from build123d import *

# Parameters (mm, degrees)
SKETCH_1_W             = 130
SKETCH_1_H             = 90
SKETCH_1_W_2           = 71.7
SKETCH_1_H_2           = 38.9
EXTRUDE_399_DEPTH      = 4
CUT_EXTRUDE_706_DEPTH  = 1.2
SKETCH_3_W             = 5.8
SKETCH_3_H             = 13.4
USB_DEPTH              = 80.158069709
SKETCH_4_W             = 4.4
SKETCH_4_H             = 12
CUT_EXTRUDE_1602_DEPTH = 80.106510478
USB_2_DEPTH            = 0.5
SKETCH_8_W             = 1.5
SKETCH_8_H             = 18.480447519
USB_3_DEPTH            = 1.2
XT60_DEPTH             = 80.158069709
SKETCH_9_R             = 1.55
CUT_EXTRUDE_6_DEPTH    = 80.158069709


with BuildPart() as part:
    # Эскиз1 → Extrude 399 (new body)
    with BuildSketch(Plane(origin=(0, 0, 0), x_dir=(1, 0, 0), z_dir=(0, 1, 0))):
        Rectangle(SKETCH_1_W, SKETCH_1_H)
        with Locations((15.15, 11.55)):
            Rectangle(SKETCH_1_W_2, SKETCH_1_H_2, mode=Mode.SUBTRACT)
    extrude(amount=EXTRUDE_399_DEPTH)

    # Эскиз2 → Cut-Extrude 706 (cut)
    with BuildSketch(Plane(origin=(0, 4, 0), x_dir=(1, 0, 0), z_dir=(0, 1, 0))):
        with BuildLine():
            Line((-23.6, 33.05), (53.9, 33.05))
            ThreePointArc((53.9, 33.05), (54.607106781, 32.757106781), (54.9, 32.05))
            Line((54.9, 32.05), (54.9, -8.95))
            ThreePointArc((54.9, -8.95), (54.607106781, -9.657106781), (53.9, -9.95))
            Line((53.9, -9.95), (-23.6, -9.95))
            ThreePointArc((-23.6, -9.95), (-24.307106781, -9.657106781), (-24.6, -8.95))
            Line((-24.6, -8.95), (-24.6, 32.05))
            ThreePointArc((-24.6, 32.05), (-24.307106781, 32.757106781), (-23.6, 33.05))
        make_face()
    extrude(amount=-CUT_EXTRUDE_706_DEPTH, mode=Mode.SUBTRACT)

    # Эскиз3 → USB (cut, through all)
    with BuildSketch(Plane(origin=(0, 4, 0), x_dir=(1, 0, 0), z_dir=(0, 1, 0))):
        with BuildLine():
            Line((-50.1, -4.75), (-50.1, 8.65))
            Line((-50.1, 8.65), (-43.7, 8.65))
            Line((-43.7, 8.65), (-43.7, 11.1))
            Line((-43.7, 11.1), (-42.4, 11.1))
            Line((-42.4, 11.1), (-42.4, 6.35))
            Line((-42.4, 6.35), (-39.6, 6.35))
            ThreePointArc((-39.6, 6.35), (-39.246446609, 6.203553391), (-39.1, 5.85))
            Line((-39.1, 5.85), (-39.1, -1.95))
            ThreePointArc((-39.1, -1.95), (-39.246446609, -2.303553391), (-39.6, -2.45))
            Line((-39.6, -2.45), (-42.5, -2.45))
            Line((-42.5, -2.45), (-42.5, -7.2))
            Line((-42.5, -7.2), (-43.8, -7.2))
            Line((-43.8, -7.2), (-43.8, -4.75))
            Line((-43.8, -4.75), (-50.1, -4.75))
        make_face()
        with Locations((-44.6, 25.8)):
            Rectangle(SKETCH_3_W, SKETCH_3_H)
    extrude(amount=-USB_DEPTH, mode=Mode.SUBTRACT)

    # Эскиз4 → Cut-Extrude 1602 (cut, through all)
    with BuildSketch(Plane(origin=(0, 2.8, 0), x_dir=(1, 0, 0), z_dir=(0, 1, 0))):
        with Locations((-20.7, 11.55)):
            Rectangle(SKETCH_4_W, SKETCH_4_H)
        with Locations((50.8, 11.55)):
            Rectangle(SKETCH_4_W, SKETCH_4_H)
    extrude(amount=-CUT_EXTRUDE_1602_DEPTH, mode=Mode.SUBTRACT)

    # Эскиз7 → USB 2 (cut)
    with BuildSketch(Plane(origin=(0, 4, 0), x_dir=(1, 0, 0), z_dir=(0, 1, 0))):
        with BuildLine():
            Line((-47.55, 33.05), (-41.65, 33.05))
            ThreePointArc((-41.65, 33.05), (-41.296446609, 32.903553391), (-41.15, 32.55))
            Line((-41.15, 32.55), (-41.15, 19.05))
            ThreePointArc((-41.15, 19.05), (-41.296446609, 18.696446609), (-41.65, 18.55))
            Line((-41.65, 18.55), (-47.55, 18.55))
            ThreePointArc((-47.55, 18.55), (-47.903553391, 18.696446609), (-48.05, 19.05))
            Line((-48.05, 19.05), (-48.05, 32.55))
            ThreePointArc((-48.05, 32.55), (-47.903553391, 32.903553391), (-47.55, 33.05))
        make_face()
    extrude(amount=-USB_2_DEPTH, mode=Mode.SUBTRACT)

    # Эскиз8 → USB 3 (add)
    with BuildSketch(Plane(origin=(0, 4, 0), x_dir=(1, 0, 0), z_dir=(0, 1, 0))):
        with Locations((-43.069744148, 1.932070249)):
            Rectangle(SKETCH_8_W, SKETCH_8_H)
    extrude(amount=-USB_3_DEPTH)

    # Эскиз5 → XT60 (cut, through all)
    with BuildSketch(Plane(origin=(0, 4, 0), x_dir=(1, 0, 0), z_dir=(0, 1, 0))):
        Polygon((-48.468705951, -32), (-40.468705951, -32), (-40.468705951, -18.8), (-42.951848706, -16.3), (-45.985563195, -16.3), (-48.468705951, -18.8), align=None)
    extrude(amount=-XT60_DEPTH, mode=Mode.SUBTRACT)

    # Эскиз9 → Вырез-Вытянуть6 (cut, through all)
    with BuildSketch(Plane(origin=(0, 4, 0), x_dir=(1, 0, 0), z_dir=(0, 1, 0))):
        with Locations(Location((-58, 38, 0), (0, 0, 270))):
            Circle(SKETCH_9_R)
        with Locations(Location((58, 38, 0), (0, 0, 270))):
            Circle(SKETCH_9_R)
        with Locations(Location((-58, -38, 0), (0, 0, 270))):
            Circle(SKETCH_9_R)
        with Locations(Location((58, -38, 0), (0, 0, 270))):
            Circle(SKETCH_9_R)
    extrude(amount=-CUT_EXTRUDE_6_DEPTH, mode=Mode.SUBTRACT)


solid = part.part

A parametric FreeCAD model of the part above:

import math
import FreeCAD as App
import Part
import Sketcher
from FreeCAD import Vector
Q = App.Units.Quantity


def add_polygon(sketch, points):
    """Adds a closed chain of lines whose ends are joined by coincident constraints."""
    first, n = sketch.GeometryCount, len(points)
    for a, b in zip(points, points[1:] + points[:1]):
        sketch.addGeometry(Part.LineSegment(App.Vector(*a, 0), App.Vector(*b, 0)), False)
    for i in range(n):
        sketch.addConstraint(Sketcher.Constraint("Coincident", first + i, 2, first + (i + 1) % n, 1))

doc = App.newDocument("Part")
body = doc.addObject("PartDesign::Body", "Body")

sketch1 = body.newObject("Sketcher::SketchObject", "Sketch")
sketch1.AttachmentSupport = (doc.getObject("XZ_Plane"), [""])
sketch1.MapMode = "FlatFace"
add_polygon(sketch1, [(-65, -45), (-65, 45), (65, 45), (65, -45)])
add_polygon(sketch1, [(51, 7.9), (-20.7, 7.9), (-20.7, -31), (51, -31)])
sketch1.addConstraint([
    Sketcher.Constraint("Vertical", 0),
    Sketcher.Constraint("Horizontal", 1),
    Sketcher.Constraint("Vertical", 2),
    Sketcher.Constraint("Horizontal", 3),
    Sketcher.Constraint("Horizontal", 4),
    Sketcher.Constraint("Vertical", 5),
    Sketcher.Constraint("Horizontal", 6),
    Sketcher.Constraint("Vertical", 7),
    Sketcher.Constraint("Symmetric", 0, 2, 2, 2, -1, 1),
    Sketcher.Constraint("DistanceX", 1, 1, 1, 2, Q("130 mm")),
    Sketcher.Constraint("DistanceY", 0, 1, 0, 2, Q("90 mm")),
    Sketcher.Constraint("DistanceX", 4, 2, 4, 1, Q("71.7 mm")),
    Sketcher.Constraint("DistanceY", 5, 2, 5, 1, Q("38.9 mm")),
    Sketcher.Constraint("DistanceY", 5, 2, -1, 1, Q("31 mm")),
    Sketcher.Constraint("DistanceX", -1, 1, 6, 2, Q("51 mm")),
])
pad1 = body.newObject("PartDesign::Pad", "Pad")
pad1.Profile = sketch1
pad1.Length = 4
pad1.Reversed = True

sketch2 = body.newObject("Sketcher::SketchObject", "Sketch001")
sketch2.AttachmentSupport = (doc.getObject("XZ_Plane"), [""])
sketch2.MapMode = "FlatFace"
sketch2.AttachmentOffset = App.Placement(Vector(0, 0, -4), App.Rotation())
sketch2.addGeometry([
    Part.LineSegment(Vector(53.9, -33.05, 0), Vector(-23.6, -33.05, 0)),
    Part.ArcOfCircle(Part.Circle(Vector(-23.6, -32.05, 0), Vector(0, 0, 1), 1), math.radians(-180), math.radians(-90)),
    Part.LineSegment(Vector(-24.6, -32.05, 0), Vector(-24.6, 8.95, 0)),
    Part.ArcOfCircle(Part.Circle(Vector(-23.6, 8.95, 0), Vector(0, 0, 1), 1), math.radians(90), math.radians(180)),
    Part.LineSegment(Vector(-23.6, 9.95, 0), Vector(53.9, 9.95, 0)),
    Part.ArcOfCircle(Part.Circle(Vector(53.9, 8.95, 0), Vector(0, 0, 1), 1), math.radians(0), math.radians(90)),
    Part.LineSegment(Vector(54.9, 8.95, 0), Vector(54.9, -32.05, 0)),
    Part.ArcOfCircle(Part.Circle(Vector(53.9, -32.05, 0), Vector(0, 0, 1), 1), math.radians(-90), math.radians(0)),
], False)
sketch2.addConstraint([
    Sketcher.Constraint("Tangent", 0, 2, 1, 2),
    Sketcher.Constraint("Tangent", 1, 1, 2, 1),
    Sketcher.Constraint("Tangent", 2, 2, 3, 2),
    Sketcher.Constraint("Tangent", 3, 1, 4, 1),
    Sketcher.Constraint("Tangent", 4, 2, 5, 2),
    Sketcher.Constraint("Tangent", 5, 1, 6, 1),
    Sketcher.Constraint("Tangent", 6, 2, 7, 2),
    Sketcher.Constraint("Tangent", 7, 1, 0, 1),
    Sketcher.Constraint("Horizontal", 0),
    Sketcher.Constraint("Vertical", 2),
    Sketcher.Constraint("Horizontal", 4),
    Sketcher.Constraint("Vertical", 6),
    Sketcher.Constraint("Equal", 1, 3),
    Sketcher.Constraint("Equal", 3, 5),
    Sketcher.Constraint("Equal", 5, 7),
    Sketcher.Constraint("Radius", 1, Q("1 mm")),
    Sketcher.Constraint("DistanceY", 2, 1, 2, 2, Q("41 mm")),
    Sketcher.Constraint("DistanceX", 0, 2, 0, 1, Q("77.5 mm")),
    Sketcher.Constraint("DistanceX", 1, 3, -1, 1, Q("23.6 mm")),
    Sketcher.Constraint("DistanceY", 1, 3, -1, 1, Q("32.05 mm")),
])
pocket1 = body.newObject("PartDesign::Pocket", "Pocket")
pocket1.Profile = sketch2
pocket1.Length = 1.2
pocket1.Reversed = True

sketch3 = body.newObject("Sketcher::SketchObject", "Sketch002")
sketch3.AttachmentSupport = (doc.getObject("XZ_Plane"), [""])
sketch3.MapMode = "FlatFace"
sketch3.AttachmentOffset = App.Placement(Vector(0, 0, -4), App.Rotation())
sketch3.addGeometry(Part.LineSegment(Vector(-50.1, -8.65, 0), Vector(-50.1, 4.75, 0)), False)
sketch3.addGeometry(Part.LineSegment(Vector(-50.1, 4.75, 0), Vector(-43.8, 4.75, 0)), False)
sketch3.addGeometry(Part.LineSegment(Vector(-43.8, 4.75, 0), Vector(-43.8, 7.2, 0)), False)
sketch3.addGeometry(Part.LineSegment(Vector(-43.8, 7.2, 0), Vector(-42.5, 7.2, 0)), False)
sketch3.addGeometry(Part.LineSegment(Vector(-42.5, 7.2, 0), Vector(-42.5, 2.45, 0)), False)
sketch3.addGeometry(Part.LineSegment(Vector(-42.5, 2.45, 0), Vector(-39.6, 2.45, 0)), False)
sketch3.addGeometry(Part.ArcOfCircle(Part.Circle(Vector(-39.6, 1.95, 0), Vector(0, 0, 1), 0.5), math.radians(0), math.radians(90)), False)
sketch3.addGeometry(Part.LineSegment(Vector(-39.1, 1.95, 0), Vector(-39.1, -5.85, 0)), False)
sketch3.addGeometry(Part.ArcOfCircle(Part.Circle(Vector(-39.6, -5.85, 0), Vector(0, 0, 1), 0.5), math.radians(-90), math.radians(0)), False)
sketch3.addGeometry(Part.LineSegment(Vector(-39.6, -6.35, 0), Vector(-42.4, -6.35, 0)), False)
sketch3.addGeometry(Part.LineSegment(Vector(-42.4, -6.35, 0), Vector(-42.4, -11.1, 0)), False)
sketch3.addGeometry(Part.LineSegment(Vector(-42.4, -11.1, 0), Vector(-43.7, -11.1, 0)), False)
sketch3.addGeometry(Part.LineSegment(Vector(-43.7, -11.1, 0), Vector(-43.7, -8.65, 0)), False)
sketch3.addGeometry(Part.LineSegment(Vector(-43.7, -8.65, 0), Vector(-50.1, -8.65, 0)), False)
add_polygon(sketch3, [(-47.5, -32.5), (-47.5, -19.1), (-41.7, -19.1), (-41.7, -32.5)])
sketch3.addConstraint([
    Sketcher.Constraint("Coincident", 0, 2, 1, 1),
    Sketcher.Constraint("Coincident", 1, 2, 2, 1),
    Sketcher.Constraint("Coincident", 2, 2, 3, 1),
    Sketcher.Constraint("Coincident", 3, 2, 4, 1),
    Sketcher.Constraint("Coincident", 4, 2, 5, 1),
    Sketcher.Constraint("Tangent", 5, 2, 6, 2),
    Sketcher.Constraint("Tangent", 6, 1, 7, 1),
    Sketcher.Constraint("Tangent", 7, 2, 8, 2),
    Sketcher.Constraint("Tangent", 8, 1, 9, 1),
    Sketcher.Constraint("Coincident", 9, 2, 10, 1),
    Sketcher.Constraint("Coincident", 10, 2, 11, 1),
    Sketcher.Constraint("Coincident", 11, 2, 12, 1),
    Sketcher.Constraint("Coincident", 12, 2, 13, 1),
    Sketcher.Constraint("Coincident", 13, 2, 0, 1),
    Sketcher.Constraint("Vertical", 0),
    Sketcher.Constraint("Horizontal", 1),
    Sketcher.Constraint("Vertical", 2),
    Sketcher.Constraint("Horizontal", 3),
    Sketcher.Constraint("Vertical", 4),
    Sketcher.Constraint("Horizontal", 5),
    Sketcher.Constraint("Vertical", 7),
    Sketcher.Constraint("Horizontal", 9),
    Sketcher.Constraint("Vertical", 10),
    Sketcher.Constraint("Horizontal", 11),
    Sketcher.Constraint("Vertical", 12),
    Sketcher.Constraint("Horizontal", 13),
    Sketcher.Constraint("Vertical", 14),
    Sketcher.Constraint("Horizontal", 15),
    Sketcher.Constraint("Vertical", 16),
    Sketcher.Constraint("Horizontal", 17),
    Sketcher.Constraint("Equal", 6, 8),
    Sketcher.Constraint("Equal", 3, 11),
    Sketcher.Constraint("Equal", 4, 10),
    Sketcher.Constraint("Equal", 2, 12),
    Sketcher.Constraint("Equal", 0, 14),
    Sketcher.Constraint("Radius", 6, Q("0.5 mm")),
    Sketcher.Constraint("DistanceX", 1, 1, 1, 2, Q("6.3 mm")),
    Sketcher.Constraint("DistanceX", 3, 1, 3, 2, Q("1.3 mm")),
    Sketcher.Constraint("DistanceX", 5, 1, 5, 2, Q("2.9 mm")),
    Sketcher.Constraint("DistanceX", 9, 2, 9, 1, Q("2.8 mm")),
    Sketcher.Constraint("DistanceX", 15, 1, 15, 2, Q("5.8 mm")),
    Sketcher.Constraint("DistanceY", 0, 1, 0, 2, Q("13.4 mm")),
    Sketcher.Constraint("DistanceY", 7, 2, 7, 1, Q("7.8 mm")),
    Sketcher.Constraint("DistanceY", 14, 2, 11, 2, Q("8 mm")),
    Sketcher.Constraint("DistanceX", 11, 2, 15, 2, Q("2 mm")),
    Sketcher.Constraint("DistanceY", 2, 1, 2, 2, Q("2.45 mm")),
    Sketcher.Constraint("DistanceX", 6, 3, -1, 1, Q("39.6 mm")),
    Sketcher.Constraint("DistanceY", -1, 1, 2, 2, Q("7.2 mm")),
])
pocket2 = body.newObject("PartDesign::Pocket", "Pocket001")
pocket2.Profile = sketch3
pocket2.Type = "ThroughAll"
pocket2.Reversed = True

sketch4 = body.newObject("Sketcher::SketchObject", "Sketch003")
sketch4.AttachmentSupport = (doc.getObject("XZ_Plane"), [""])
sketch4.MapMode = "FlatFace"
sketch4.AttachmentOffset = App.Placement(Vector(0, 0, -2.8), App.Rotation())
add_polygon(sketch4, [(-22.9, -17.55), (-22.9, -5.55), (-18.5, -5.55), (-18.5, -17.55)])
add_polygon(sketch4, [(48.6, -17.55), (48.6, -5.55), (53, -5.55), (53, -17.55)])
sketch4.addConstraint([
    Sketcher.Constraint("Vertical", 0),
    Sketcher.Constraint("Horizontal", 1),
    Sketcher.Constraint("Vertical", 2),
    Sketcher.Constraint("Horizontal", 3),
    Sketcher.Constraint("Vertical", 4),
    Sketcher.Constraint("Horizontal", 5),
    Sketcher.Constraint("Vertical", 6),
    Sketcher.Constraint("Horizontal", 7),
    Sketcher.Constraint("Horizontal", 1, 2, 4, 2),
    Sketcher.Constraint("Horizontal", 3, 2, 6, 2),
    Sketcher.Constraint("Equal", 3, 5),
    Sketcher.Constraint("DistanceY", 0, 1, 0, 2, Q("12 mm")),
    Sketcher.Constraint("DistanceX", 1, 1, 1, 2, Q("4.4 mm")),
    Sketcher.Constraint("DistanceX", -1, 1, 5, 2, Q("53 mm")),
    Sketcher.Constraint("DistanceX", 0, 2, -1, 1, Q("22.9 mm")),
    Sketcher.Constraint("DistanceY", 0, 2, -1, 1, Q("5.55 mm")),
])
pocket3 = body.newObject("PartDesign::Pocket", "Pocket002")
pocket3.Profile = sketch4
pocket3.Type = "ThroughAll"
pocket3.Reversed = True

sketch5 = body.newObject("Sketcher::SketchObject", "Sketch004")
sketch5.AttachmentSupport = (doc.getObject("XZ_Plane"), [""])
sketch5.MapMode = "FlatFace"
sketch5.AttachmentOffset = App.Placement(Vector(0, 0, -4), App.Rotation())
sketch5.addGeometry([
    Part.LineSegment(Vector(-41.65, -33.05, 0), Vector(-47.55, -33.05, 0)),
    Part.ArcOfCircle(Part.Circle(Vector(-47.55, -32.55, 0), Vector(0, 0, 1), 0.5), math.radians(180), math.radians(270)),
    Part.LineSegment(Vector(-48.05, -32.55, 0), Vector(-48.05, -19.05, 0)),
    Part.ArcOfCircle(Part.Circle(Vector(-47.55, -19.05, 0), Vector(0, 0, 1), 0.5), math.radians(90), math.radians(180)),
    Part.LineSegment(Vector(-47.55, -18.55, 0), Vector(-41.65, -18.55, 0)),
    Part.ArcOfCircle(Part.Circle(Vector(-41.65, -19.05, 0), Vector(0, 0, 1), 0.5), math.radians(0), math.radians(90)),
    Part.LineSegment(Vector(-41.15, -19.05, 0), Vector(-41.15, -32.55, 0)),
    Part.ArcOfCircle(Part.Circle(Vector(-41.65, -32.55, 0), Vector(0, 0, 1), 0.5), math.radians(-90), math.radians(0)),
], False)
sketch5.addConstraint([
    Sketcher.Constraint("Tangent", 0, 2, 1, 2),
    Sketcher.Constraint("Tangent", 1, 1, 2, 1),
    Sketcher.Constraint("Tangent", 2, 2, 3, 2),
    Sketcher.Constraint("Tangent", 3, 1, 4, 1),
    Sketcher.Constraint("Tangent", 4, 2, 5, 2),
    Sketcher.Constraint("Tangent", 5, 1, 6, 1),
    Sketcher.Constraint("Tangent", 6, 2, 7, 2),
    Sketcher.Constraint("Tangent", 7, 1, 0, 1),
    Sketcher.Constraint("Horizontal", 0),
    Sketcher.Constraint("Vertical", 2),
    Sketcher.Constraint("Horizontal", 4),
    Sketcher.Constraint("Vertical", 6),
    Sketcher.Constraint("Equal", 1, 3),
    Sketcher.Constraint("Equal", 3, 5),
    Sketcher.Constraint("Equal", 5, 7),
    Sketcher.Constraint("Radius", 1, Q("0.5 mm")),
    Sketcher.Constraint("DistanceX", 0, 2, 0, 1, Q("5.9 mm")),
    Sketcher.Constraint("DistanceY", 2, 1, 2, 2, Q("13.5 mm")),
    Sketcher.Constraint("DistanceX", 1, 3, -1, 1, Q("47.55 mm")),
    Sketcher.Constraint("DistanceY", 1, 3, -1, 1, Q("32.55 mm")),
])
pocket4 = body.newObject("PartDesign::Pocket", "Pocket003")
pocket4.Profile = sketch5
pocket4.Length = 0.5
pocket4.Reversed = True

sketch6 = body.newObject("Sketcher::SketchObject", "Sketch005")
sketch6.AttachmentSupport = (doc.getObject("XZ_Plane"), [""])
sketch6.MapMode = "FlatFace"
sketch6.AttachmentOffset = App.Placement(Vector(0, 0, -4), App.Rotation())
add_polygon(sketch6, [(-43.819744, -11.172294), (-43.819744, 7.308154), (-42.319744, 7.308154), (-42.319744, -11.172294)])
sketch6.addConstraint([
    Sketcher.Constraint("Vertical", 0),
    Sketcher.Constraint("Horizontal", 1),
    Sketcher.Constraint("Vertical", 2),
    Sketcher.Constraint("Horizontal", 3),
    Sketcher.Constraint("DistanceX", 1, 1, 1, 2, Q("1.5 mm")),
    Sketcher.Constraint("DistanceY", 0, 1, 0, 2, Q("18.480448 mm")),
    Sketcher.Constraint("DistanceX", 0, 2, -1, 1, Q("43.819744 mm")),
    Sketcher.Constraint("DistanceY", -1, 1, 0, 2, Q("7.308154 mm")),
])
pad2 = body.newObject("PartDesign::Pad", "Pad001")
pad2.Profile = sketch6
pad2.Length = 1.2

sketch7 = body.newObject("Sketcher::SketchObject", "Sketch006")
sketch7.AttachmentSupport = (doc.getObject("XZ_Plane"), [""])
sketch7.MapMode = "FlatFace"
sketch7.AttachmentOffset = App.Placement(Vector(0, 0, -4), App.Rotation())
add_polygon(sketch7, [(-48.468706, 32), (-40.468706, 32), (-40.468706, 18.8), (-42.951849, 16.3), (-45.985563, 16.3), (-48.468706, 18.8)])
sketch7.addConstraint([
    Sketcher.Constraint("Horizontal", 0),
    Sketcher.Constraint("Vertical", 1),
    Sketcher.Constraint("Horizontal", 3),
    Sketcher.Constraint("Vertical", 5),
    Sketcher.Constraint("Horizontal", 1, 2, 4, 2),
    Sketcher.Constraint("Equal", 2, 4),
    Sketcher.Constraint("DistanceX", 0, 1, 0, 2, Q("8 mm")),
    Sketcher.Constraint("DistanceY", 1, 2, 1, 1, Q("13.2 mm")),
    Sketcher.Constraint("DistanceY", -1, 1, 0, 2, Q("32 mm")),
    Sketcher.Constraint("DistanceY", -1, 1, 2, 2, Q("16.3 mm")),
    Sketcher.Constraint("DistanceX", 3, 2, 3, 1, Q("3.033714 mm")),
    Sketcher.Constraint("DistanceX", 2, 2, -1, 1, Q("42.951849 mm")),
])
pocket5 = body.newObject("PartDesign::Pocket", "Pocket004")
pocket5.Profile = sketch7
pocket5.Type = "ThroughAll"
pocket5.Reversed = True

sketch8 = body.newObject("Sketcher::SketchObject", "Sketch007")
sketch8.AttachmentSupport = (doc.getObject("XZ_Plane"), [""])
sketch8.MapMode = "FlatFace"
sketch8.AttachmentOffset = App.Placement(Vector(0, 0, -4), App.Rotation())
sketch8.addGeometry([
    Part.Circle(Vector(-58, -38, 0), Vector(0, 0, 1), 1.55),
    Part.Circle(Vector(58, -38, 0), Vector(0, 0, 1), 1.55),
    Part.Circle(Vector(-58, 38, 0), Vector(0, 0, 1), 1.55),
    Part.Circle(Vector(58, 38, 0), Vector(0, 0, 1), 1.55),
], False)
sketch8.addConstraint([
    Sketcher.Constraint("Equal", 0, 1),
    Sketcher.Constraint("Equal", 1, 2),
    Sketcher.Constraint("Equal", 2, 3),
    Sketcher.Constraint("Symmetric", 1, 3, 2, 3, -1, 1),
    Sketcher.Constraint("Symmetric", 0, 3, 3, 3, -1, 1),
    Sketcher.Constraint("Symmetric", 0, 3, 1, 3, -2),
    Sketcher.Constraint("Diameter", 0, Q("3.1 mm")),
    Sketcher.Constraint("DistanceX", 0, 3, -1, 1, Q("58 mm")),
    Sketcher.Constraint("DistanceY", 0, 3, -1, 1, Q("38 mm")),
])
pocket6 = body.newObject("PartDesign::Pocket", "Pocket005")
pocket6.Profile = sketch8
pocket6.Type = "ThroughAll"
pocket6.Reversed = True

doc.recompute()
